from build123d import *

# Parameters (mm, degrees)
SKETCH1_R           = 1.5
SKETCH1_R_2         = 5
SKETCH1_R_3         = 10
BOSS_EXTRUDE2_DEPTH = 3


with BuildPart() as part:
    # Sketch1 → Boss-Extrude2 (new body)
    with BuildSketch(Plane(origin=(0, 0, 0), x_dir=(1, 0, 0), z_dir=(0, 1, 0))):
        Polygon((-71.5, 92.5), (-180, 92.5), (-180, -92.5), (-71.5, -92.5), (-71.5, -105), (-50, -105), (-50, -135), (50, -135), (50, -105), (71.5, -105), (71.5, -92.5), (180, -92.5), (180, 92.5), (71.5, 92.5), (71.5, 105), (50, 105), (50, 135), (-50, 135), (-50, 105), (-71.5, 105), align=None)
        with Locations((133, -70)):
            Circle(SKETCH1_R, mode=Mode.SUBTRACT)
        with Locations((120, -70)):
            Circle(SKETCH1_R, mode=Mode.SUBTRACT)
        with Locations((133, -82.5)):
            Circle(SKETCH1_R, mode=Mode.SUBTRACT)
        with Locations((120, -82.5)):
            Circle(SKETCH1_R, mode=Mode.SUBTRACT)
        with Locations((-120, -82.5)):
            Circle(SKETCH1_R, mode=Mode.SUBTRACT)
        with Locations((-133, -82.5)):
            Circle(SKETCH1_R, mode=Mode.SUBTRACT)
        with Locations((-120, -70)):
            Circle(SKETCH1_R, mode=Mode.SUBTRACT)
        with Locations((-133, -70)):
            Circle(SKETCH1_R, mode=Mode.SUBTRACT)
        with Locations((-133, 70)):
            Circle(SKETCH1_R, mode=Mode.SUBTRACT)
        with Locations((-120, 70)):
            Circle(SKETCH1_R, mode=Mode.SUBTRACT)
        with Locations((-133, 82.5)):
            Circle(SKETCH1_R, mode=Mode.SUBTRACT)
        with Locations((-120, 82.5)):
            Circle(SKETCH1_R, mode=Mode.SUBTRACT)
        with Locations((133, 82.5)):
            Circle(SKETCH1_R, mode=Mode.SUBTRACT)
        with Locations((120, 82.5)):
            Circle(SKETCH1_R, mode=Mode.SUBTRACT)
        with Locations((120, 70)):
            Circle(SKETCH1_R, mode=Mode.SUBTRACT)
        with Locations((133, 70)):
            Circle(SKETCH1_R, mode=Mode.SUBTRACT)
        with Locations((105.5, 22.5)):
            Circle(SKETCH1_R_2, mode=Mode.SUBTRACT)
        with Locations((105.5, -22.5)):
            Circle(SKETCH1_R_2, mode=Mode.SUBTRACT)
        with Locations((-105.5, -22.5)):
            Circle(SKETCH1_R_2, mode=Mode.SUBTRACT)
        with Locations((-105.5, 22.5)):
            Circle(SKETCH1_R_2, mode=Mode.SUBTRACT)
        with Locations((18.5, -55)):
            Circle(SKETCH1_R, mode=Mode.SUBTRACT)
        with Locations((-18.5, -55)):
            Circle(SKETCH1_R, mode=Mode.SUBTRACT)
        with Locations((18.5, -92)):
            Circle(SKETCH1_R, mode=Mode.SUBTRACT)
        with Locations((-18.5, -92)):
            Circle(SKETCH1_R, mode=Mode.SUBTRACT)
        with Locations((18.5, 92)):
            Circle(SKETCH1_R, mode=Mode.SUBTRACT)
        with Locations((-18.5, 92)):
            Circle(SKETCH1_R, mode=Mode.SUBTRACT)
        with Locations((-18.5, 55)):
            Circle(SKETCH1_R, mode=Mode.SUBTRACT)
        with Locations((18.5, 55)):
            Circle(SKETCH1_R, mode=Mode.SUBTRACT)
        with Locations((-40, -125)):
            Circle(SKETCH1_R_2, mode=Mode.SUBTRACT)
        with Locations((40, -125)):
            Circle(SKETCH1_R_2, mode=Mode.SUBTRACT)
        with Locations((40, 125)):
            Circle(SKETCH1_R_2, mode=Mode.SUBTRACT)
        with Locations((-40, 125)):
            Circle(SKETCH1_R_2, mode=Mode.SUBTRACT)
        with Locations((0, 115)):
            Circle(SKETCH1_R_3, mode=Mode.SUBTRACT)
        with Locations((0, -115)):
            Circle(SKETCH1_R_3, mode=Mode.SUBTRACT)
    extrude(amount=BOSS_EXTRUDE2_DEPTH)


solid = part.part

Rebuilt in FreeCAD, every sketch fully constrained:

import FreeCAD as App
import Part
import Sketcher
from FreeCAD import Vector


def add_polygon(sketch, points):
    """Adds a closed chain of lines whose ends are joined by coincident constraints."""
    first, n = sketch.GeometryCount, len(points)
    for a, b in zip(points, points[1:] + points[:1]):
        sketch.addGeometry(Part.LineSegment(App.Vector(*a, 0), App.Vector(*b, 0)), False)
    for i in range(n):
        sketch.addConstraint(Sketcher.Constraint("Coincident", first + i, 2, first + (i + 1) % n, 1))

doc = App.newDocument("Part")
params = doc.addObject("Spreadsheet::Sheet", "Params")
for row, (alias, value) in enumerate([
    ("sketch1_diameter", "3 mm"),
    ("sketch1_diameter2", "10 mm"),
    ("sketch1_diameter3", "20 mm"),
    ("sketch1_width", "100 mm"),
    ("sketch1_height", "185 mm"),
    ("pad1_length", "3 mm"),
], start=1):
    params.set(f"A{row}", alias)
    params.set(f"B{row}", "=" + value)
    params.setAlias(f"B{row}", alias)

body = doc.addObject("PartDesign::Body", "Body")

sketch1 = doc.addObject("Sketcher::SketchObject", "Sketch")
body.addObject(sketch1)
sketch1.AttachmentSupport = (doc.XZ_Plane, [""])
sketch1.MapMode = "FlatFace"
add_polygon(sketch1, [(-71.5, -92.5), (-180, -92.5), (-180, 92.5), (-71.5, 92.5), (-71.5, 105), (-50, 105), (-50, 135), (50, 135), (50, 105), (71.5, 105), (71.5, 92.5), (180, 92.5), (180, -92.5), (71.5, -92.5), (71.5, -105), (50, -105), (50, -135), (-50, -135), (-50, -105), (-71.5, -105)])
sketch1.addGeometry(Part.Circle(Vector(-133, 82.5, 0), Vector(0, 0, 1), 1.5), False)
sketch1.addGeometry(Part.Circle(Vector(-120, 82.5, 0), Vector(0, 0, 1), 1.5), False)
sketch1.addGeometry(Part.Circle(Vector(-133, 70, 0), Vector(0, 0, 1), 1.5), False)
sketch1.addGeometry(Part.Circle(Vector(-120, 70, 0), Vector(0, 0, 1), 1.5), False)
sketch1.addGeometry(Part.Circle(Vector(-40, 125, 0), Vector(0, 0, 1), 5), False)
sketch1.addGeometry(Part.Circle(Vector(-18.5, 92, 0), Vector(0, 0, 1), 1.5), False)
sketch1.addGeometry(Part.Circle(Vector(-105.5, 22.5, 0), Vector(0, 0, 1), 5), False)
sketch1.addGeometry(Part.Circle(Vector(-18.5, 55, 0), Vector(0, 0, 1), 1.5), False)
sketch1.addGeometry(Part.Circle(Vector(0, 115, 0), Vector(0, 0, 1), 10), False)
sketch1.addGeometry(Part.Circle(Vector(40, 125, 0), Vector(0, 0, 1), 5), False)
sketch1.addGeometry(Part.Circle(Vector(18.5, 92, 0), Vector(0, 0, 1), 1.5), False)
sketch1.addGeometry(Part.Circle(Vector(120, 82.5, 0), Vector(0, 0, 1), 1.5), False)
sketch1.addGeometry(Part.Circle(Vector(133, 82.5, 0), Vector(0, 0, 1), 1.5), False)
sketch1.addGeometry(Part.Circle(Vector(120, 70, 0), Vector(0, 0, 1), 1.5), False)
sketch1.addGeometry(Part.Circle(Vector(133, 70, 0), Vector(0, 0, 1), 1.5), False)
sketch1.addGeometry(Part.Circle(Vector(18.5, 55, 0), Vector(0, 0, 1), 1.5), False)
sketch1.addGeometry(Part.Circle(Vector(105.5, 22.5, 0), Vector(0, 0, 1), 5), False)
sketch1.addGeometry(Part.Circle(Vector(-105.5, -22.5, 0), Vector(0, 0, 1), 5), False)
sketch1.addGeometry(Part.Circle(Vector(-18.5, -55, 0), Vector(0, 0, 1), 1.5), False)
sketch1.addGeometry(Part.Circle(Vector(-133, -70, 0), Vector(0, 0, 1), 1.5), False)
sketch1.addGeometry(Part.Circle(Vector(-120, -70, 0), Vector(0, 0, 1), 1.5), False)
sketch1.addGeometry(Part.Circle(Vector(-133, -82.5, 0), Vector(0, 0, 1), 1.5), False)
sketch1.addGeometry(Part.Circle(Vector(-120, -82.5, 0), Vector(0, 0, 1), 1.5), False)
sketch1.addGeometry(Part.Circle(Vector(-18.5, -92, 0), Vector(0, 0, 1), 1.5), False)
sketch1.addGeometry(Part.Circle(Vector(-40, -125, 0), Vector(0, 0, 1), 5), False)
sketch1.addGeometry(Part.Circle(Vector(18.5, -55, 0), Vector(0, 0, 1), 1.5), False)
sketch1.addGeometry(Part.Circle(Vector(105.5, -22.5, 0), Vector(0, 0, 1), 5), False)
sketch1.addGeometry(Part.Circle(Vector(18.5, -92, 0), Vector(0, 0, 1), 1.5), False)
sketch1.addGeometry(Part.Circle(Vector(0, -115, 0), Vector(0, 0, 1), 10), False)
sketch1.addGeometry(Part.Circle(Vector(40, -125, 0), Vector(0, 0, 1), 5), False)
sketch1.addGeometry(Part.Circle(Vector(120, -70, 0), Vector(0, 0, 1), 1.5), False)
sketch1.addGeometry(Part.Circle(Vector(133, -70, 0), Vector(0, 0, 1), 1.5), False)
sketch1.addGeometry(Part.Circle(Vector(120, -82.5, 0), Vector(0, 0, 1), 1.5), False)
sketch1.addGeometry(Part.Circle(Vector(133, -82.5, 0), Vector(0, 0, 1), 1.5), False)
sketch1.addConstraint(Sketcher.Constraint("Horizontal", 0))
sketch1.addConstraint(Sketcher.Constraint("Vertical", 1))
sketch1.addConstraint(Sketcher.Constraint("Horizontal", 2))
sketch1.addConstraint(Sketcher.Constraint("Vertical", 3))
sketch1.addConstraint(Sketcher.Constraint("Horizontal", 4))
sketch1.addConstraint(Sketcher.Constraint("Vertical", 5))
sketch1.addConstraint(Sketcher.Constraint("Horizontal", 6))
sketch1.addConstraint(Sketcher.Constraint("Vertical", 7))
sketch1.addConstraint(Sketcher.Constraint("Horizontal", 8))
sketch1.addConstraint(Sketcher.Constraint("Vertical", 9))
sketch1.addConstraint(Sketcher.Constraint("Horizontal", 10))
sketch1.addConstraint(Sketcher.Constraint("Vertical", 11))
sketch1.addConstraint(Sketcher.Constraint("Horizontal", 12))
sketch1.addConstraint(Sketcher.Constraint("Vertical", 13))
sketch1.addConstraint(Sketcher.Constraint("Horizontal", 14))
sketch1.addConstraint(Sketcher.Constraint("Vertical", 15))
sketch1.addConstraint(Sketcher.Constraint("Horizontal", 16))
sketch1.addConstraint(Sketcher.Constraint("Vertical", 17))
sketch1.addConstraint(Sketcher.Constraint("Horizontal", 18))
sketch1.addConstraint(Sketcher.Constraint("Vertical", 19))
sketch1.addConstraint(Sketcher.Constraint("Equal", 20, 21))
sketch1.addConstraint(Sketcher.Constraint("Equal", 21, 22))
sketch1.addConstraint(Sketcher.Constraint("Equal", 22, 23))
sketch1.addConstraint(Sketcher.Constraint("Equal", 23, 25))
sketch1.addConstraint(Sketcher.Constraint("Equal", 24, 26))
sketch1.addConstraint(Sketcher.Constraint("Equal", 25, 27))
sketch1.addConstraint(Sketcher.Constraint("Equal", 26, 29))
sketch1.addConstraint(Sketcher.Constraint("Equal", 27, 30))
sketch1.addConstraint(Sketcher.Constraint("Equal", 30, 31))
sketch1.addConstraint(Sketcher.Constraint("Equal", 31, 32))
sketch1.addConstraint(Sketcher.Constraint("Equal", 32, 33))
sketch1.addConstraint(Sketcher.Constraint("Equal", 33, 34))
sketch1.addConstraint(Sketcher.Constraint("Equal", 34, 35))
sketch1.addConstraint(Sketcher.Constraint("Equal", 29, 36))
sketch1.addConstraint(Sketcher.Constraint("Equal", 36, 37))
sketch1.addConstraint(Sketcher.Constraint("Equal", 35, 38))
sketch1.addConstraint(Sketcher.Constraint("Equal", 38, 39))
sketch1.addConstraint(Sketcher.Constraint("Equal", 39, 40))
sketch1.addConstraint(Sketcher.Constraint("Equal", 40, 41))
sketch1.addConstraint(Sketcher.Constraint("Equal", 41, 42))
sketch1.addConstraint(Sketcher.Constraint("Equal", 42, 43))
sketch1.addConstraint(Sketcher.Constraint("Equal", 37, 44))
sketch1.addConstraint(Sketcher.Constraint("Equal", 43, 45))
sketch1.addConstraint(Sketcher.Constraint("Equal", 44, 46))
sketch1.addConstraint(Sketcher.Constraint("Equal", 45, 47))
sketch1.addConstraint(Sketcher.Constraint("Equal", 28, 48))
sketch1.addConstraint(Sketcher.Constraint("Equal", 46, 49))
sketch1.addConstraint(Sketcher.Constraint("Equal", 47, 50))
sketch1.addConstraint(Sketcher.Constraint("Equal", 50, 51))
sketch1.addConstraint(Sketcher.Constraint("Equal", 51, 52))
sketch1.addConstraint(Sketcher.Constraint("Equal", 52, 53))
sketch1.addConstraint(Sketcher.Constraint("Symmetric", 36, 3, 37, 3, -1, 1))
sketch1.addConstraint(Sketcher.Constraint("Symmetric", 35, 3, 38, 3, -1, 1))
sketch1.addConstraint(Sketcher.Constraint("Symmetric", 34, 3, 39, 3, -1, 1))
sketch1.addConstraint(Sketcher.Constraint("Symmetric", 33, 3, 40, 3, -1, 1))
sketch1.addConstraint(Sketcher.Constraint("Symmetric", 32, 3, 41, 3, -1, 1))
sketch1.addConstraint(Sketcher.Constraint("Symmetric", 31, 3, 42, 3, -1, 1))
sketch1.addConstraint(Sketcher.Constraint("Symmetric", 30, 3, 43, 3, -1, 1))
sketch1.addConstraint(Sketcher.Constraint("Symmetric", 29, 3, 44, 3, -1, 1))
sketch1.addConstraint(Sketcher.Constraint("Symmetric", 27, 3, 45, 3, -1, 1))
sketch1.addConstraint(Sketcher.Constraint("Symmetric", 26, 3, 46, 3, -1, 1))
sketch1.addConstraint(Sketcher.Constraint("Symmetric", 25, 3, 47, 3, -1, 1))
sketch1.addConstraint(Sketcher.Constraint("Symmetric", 28, 3, 48, 3, -1, 1))
sketch1.addConstraint(Sketcher.Constraint("Symmetric", 24, 3, 49, 3, -1, 1))
sketch1.addConstraint(Sketcher.Constraint("Symmetric", 23, 3, 50, 3, -1, 1))
sketch1.addConstraint(Sketcher.Constraint("Symmetric", 22, 3, 51, 3, -1, 1))
sketch1.addConstraint(Sketcher.Constraint("Symmetric", 21, 3, 52, 3, -1, 1))
sketch1.addConstraint(Sketcher.Constraint("Symmetric", 20, 3, 53, 3, -1, 1))
sketch1.addConstraint(Sketcher.Constraint("Symmetric", 0, 2, 10, 2, -1, 1))
sketch1.addConstraint(Sketcher.Constraint("Symmetric", 2, 2, 12, 2, -1, 1))
sketch1.addConstraint(Sketcher.Constraint("Symmetric", 4, 2, 14, 2, -1, 1))
sketch1.addConstraint(Sketcher.Constraint("Symmetric", 6, 2, 16, 2, -1, 1))
sketch1.addConstraint(Sketcher.Constraint("Symmetric", 8, 2, 18, 2, -1, 1))
sketch1.addConstraint(Sketcher.Constraint("Symmetric", 24, 3, 29, 3, -2))
sketch1.addConstraint(Sketcher.Constraint("Symmetric", 25, 3, 30, 3, -2))
sketch1.addConstraint(Sketcher.Constraint("Symmetric", 21, 3, 31, 3, -2))
sketch1.addConstraint(Sketcher.Constraint("Symmetric", 20, 3, 32, 3, -2))
sketch1.addConstraint(Sketcher.Constraint("Symmetric", 23, 3, 33, 3, -2))
sketch1.addConstraint(Sketcher.Constraint("Symmetric", 22, 3, 34, 3, -2))
sketch1.addConstraint(Sketcher.Constraint("Symmetric", 27, 3, 35, 3, -2))
sketch1.addConstraint(Sketcher.Constraint("Symmetric", 26, 3, 36, 3, -2))
sketch1.addConstraint(Sketcher.Constraint("Symmetric", 4, 2, 7, 2, -2))
sketch1.addConstraint(Sketcher.Constraint("Symmetric", 2, 2, 9, 2, -2))
sketch1.addConstraint(Sketcher.Constraint("PointOnObject", 28, 3, -2))
sketch1.addConstraint(Sketcher.Constraint("Horizontal", 20, 3, 21, 3))
sketch1.addConstraint(Sketcher.Constraint("Horizontal", 22, 3, 23, 3))
sketch1.addConstraint(Sketcher.Constraint("Vertical", 20, 3, 22, 3))
sketch1.addConstraint(Sketcher.Constraint("Vertical", 21, 3, 23, 3))
sketch1.addConstraint(Sketcher.Constraint("Vertical", 25, 3, 27, 3))
sketch1.addConstraint(Sketcher.Constraint("Diameter", 20, 3.0))
sketch1.addConstraint(Sketcher.Constraint("Diameter", 24, 10.0))
sketch1.addConstraint(Sketcher.Constraint("Diameter", 28, 20.0))
sketch1.addConstraint(Sketcher.Constraint("DistanceX", 6, 1, 6, 2, 100.0))
sketch1.addConstraint(Sketcher.Constraint("DistanceY", 1, 1, 1, 2, 185.0))
sketch1.addConstraint(Sketcher.Constraint("DistanceY", 5, 1, 5, 2, 30.0))
sketch1.addConstraint(Sketcher.Constraint("DistanceX", 0, 2, 0, 1, 108.5))
sketch1.addConstraint(Sketcher.Constraint("DistanceX", 4, 1, 4, 2, 21.5))
sketch1.addConstraint(Sketcher.Constraint("DistanceY", 3, 1, 3, 2, 12.5))
sketch1.addConstraint(Sketcher.Constraint("DistanceX", 20, 3, -1, 1, 133.0))
sketch1.addConstraint(Sketcher.Constraint("DistanceX", 21, 3, -1, 1, 120.0))
sketch1.addConstraint(Sketcher.Constraint("DistanceY", -1, 1, 22, 3, 70.0))
sketch1.addConstraint(Sketcher.Constraint("DistanceX", 24, 3, -1, 1, 40.0))
sketch1.addConstraint(Sketcher.Constraint("DistanceY", -1, 1, 24, 3, 125.0))
sketch1.addConstraint(Sketcher.Constraint("DistanceY", -1, 1, 25, 3, 92.0))
sketch1.addConstraint(Sketcher.Constraint("DistanceY", -1, 1, 27, 3, 55.0))
sketch1.addConstraint(Sketcher.Constraint("DistanceY", -1, 1, 28, 3, 115.0))
sketch1.addConstraint(Sketcher.Constraint("DistanceY", 26, 3, 21, 3, 60.0))
sketch1.addConstraint(Sketcher.Constraint("DistanceX", 26, 3, 25, 3, 87.0))
sketch1.addConstraint(Sketcher.Constraint("DistanceX", 25, 3, 30, 3, 37.0))
sketch1.addConstraint(Sketcher.Constraint("DistanceY", 37, 3, 26, 3, 45.0))
sketch1.setExpression("Constraints[109]", "Params.sketch1_diameter")
sketch1.setExpression("Constraints[110]", "Params.sketch1_diameter2")
sketch1.setExpression("Constraints[111]", "Params.sketch1_diameter3")
sketch1.setExpression("Constraints[112]", "Params.sketch1_width")
sketch1.setExpression("Constraints[113]", "Params.sketch1_height")
pad1 = doc.addObject("PartDesign::Pad", "Pad")
body.addObject(pad1)
pad1.Profile = sketch1
pad1.setExpression("Length", "Params.pad1_length")
pad1.Reversed = True

doc.recompute()
